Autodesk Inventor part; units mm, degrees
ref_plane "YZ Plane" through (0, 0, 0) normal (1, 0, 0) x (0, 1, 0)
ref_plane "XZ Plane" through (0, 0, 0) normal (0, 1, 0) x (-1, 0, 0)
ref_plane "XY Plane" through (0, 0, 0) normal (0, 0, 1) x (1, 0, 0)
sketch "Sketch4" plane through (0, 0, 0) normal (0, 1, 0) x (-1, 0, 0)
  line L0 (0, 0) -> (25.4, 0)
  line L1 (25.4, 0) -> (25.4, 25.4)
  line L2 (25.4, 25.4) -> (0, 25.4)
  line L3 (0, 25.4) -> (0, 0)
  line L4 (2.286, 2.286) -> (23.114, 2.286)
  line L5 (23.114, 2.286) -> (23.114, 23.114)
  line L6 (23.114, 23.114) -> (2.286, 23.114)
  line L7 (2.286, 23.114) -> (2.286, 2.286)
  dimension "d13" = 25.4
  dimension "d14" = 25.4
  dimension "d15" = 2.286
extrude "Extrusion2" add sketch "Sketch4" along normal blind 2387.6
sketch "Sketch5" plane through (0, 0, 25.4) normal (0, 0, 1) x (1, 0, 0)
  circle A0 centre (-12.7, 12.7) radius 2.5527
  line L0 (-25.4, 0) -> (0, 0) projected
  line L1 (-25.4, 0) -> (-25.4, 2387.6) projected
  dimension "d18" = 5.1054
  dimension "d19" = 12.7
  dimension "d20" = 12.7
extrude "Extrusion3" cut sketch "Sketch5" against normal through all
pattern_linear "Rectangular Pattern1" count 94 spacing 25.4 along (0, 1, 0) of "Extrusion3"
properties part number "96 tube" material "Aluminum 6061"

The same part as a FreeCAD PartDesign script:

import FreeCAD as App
import Part
import Sketcher

V = App.Vector
Q = App.Units.Quantity


def add_polygon(sketch, points):
    """Adds a closed chain of lines whose ends are joined by coincident constraints."""
    first, n = sketch.GeometryCount, len(points)
    for a, b in zip(points, points[1:] + points[:1]):
        sketch.addGeometry(Part.LineSegment(App.Vector(*a, 0), App.Vector(*b, 0)), False)
    for i in range(n):
        sketch.addConstraint(Sketcher.Constraint("Coincident", first + i, 2, first + (i + 1) % n, 1))

doc = App.newDocument("Part")
body = doc.addObject("PartDesign::Body", "Body")

# Sketch on XZ plane
sketch1 = body.newObject("Sketcher::SketchObject", "Sketch")
sketch1.AttachmentSupport = (doc.getObject("XZ_Plane"), [""])
sketch1.MapMode = "FlatFace"
add_polygon(sketch1, [(0, 25), (0, 0), (-25, 0), (-25, 25)])  # lines 0-3
add_polygon(sketch1, [(-23, 2), (-2, 2), (-2, 23), (-23, 23)])  # lines 4-7
sketch1.addConstraint(Sketcher.Constraint("Vertical", 0))
sketch1.addConstraint(Sketcher.Constraint("Horizontal", 1))
sketch1.addConstraint(Sketcher.Constraint("Vertical", 2))
sketch1.addConstraint(Sketcher.Constraint("Horizontal", 3))
sketch1.addConstraint(Sketcher.Constraint("Horizontal", 4))
sketch1.addConstraint(Sketcher.Constraint("Vertical", 5))
sketch1.addConstraint(Sketcher.Constraint("Horizontal", 6))
sketch1.addConstraint(Sketcher.Constraint("Vertical", 7))
sketch1.addConstraint(Sketcher.Constraint("Coincident", 0, 2, -1, 1))
sketch1.addConstraint(Sketcher.Constraint("Equal", 3, 0))
sketch1.addConstraint(Sketcher.Constraint("Equal", 6, 5))
sketch1.addConstraint(Sketcher.Constraint("DistanceX", 1, 2, 1, 1, Q("1 in")))
sketch1.addConstraint(Sketcher.Constraint("DistanceX", 4, 2, -1, 1, Q("0.09 in")))
sketch1.addConstraint(Sketcher.Constraint("DistanceY", -1, 1, 4, 2, Q("0.09 in")))
sketch1.addConstraint(Sketcher.Constraint("DistanceY", 5, 2, 3, 2, Q("0.09 in")))
pad1 = body.newObject("PartDesign::Pad", "Pad")
pad1.Profile = sketch1
pad1.Length = Q("94 in")
pad1.Reversed = True

# Sketch on XY plane
sketch2 = body.newObject("Sketcher::SketchObject", "Sketch001")
sketch2.AttachmentSupport = (doc.getObject("XY_Plane"), [""])
sketch2.MapMode = "FlatFace"
sketch2.AttachmentOffset = App.Placement(V(0, 0, 1 * 25.4), App.Rotation())
sketch2.addGeometry(Part.Circle(V(-12.7, 12.7, 0), V(0, 0, 1), 2.6), False)
sketch2.addConstraint(Sketcher.Constraint("Diameter", 0, Q("0.201 in")))
sketch2.addConstraint(Sketcher.Constraint("DistanceX", 0, 3, -1, 1, Q("0.5 in")))
sketch2.addConstraint(Sketcher.Constraint("DistanceY", -1, 1, 0, 3, Q("0.5 in")))
pocket1 = body.newObject("PartDesign::Pocket", "Pocket")
pocket1.Profile = sketch2
pocket1.Type = "ThroughAll"
doc.recompute()

linearpattern = body.newObject("PartDesign::LinearPattern", "LinearPattern")
linearpattern.Originals = [pocket1]
linearpattern.Direction = (doc.getObject("Y_Axis"), [""])
linearpattern.Mode = "offset"
linearpattern.Offset = Q("1 in")
linearpattern.Occurrences = 94
body.Tip = linearpattern

doc.recompute()
